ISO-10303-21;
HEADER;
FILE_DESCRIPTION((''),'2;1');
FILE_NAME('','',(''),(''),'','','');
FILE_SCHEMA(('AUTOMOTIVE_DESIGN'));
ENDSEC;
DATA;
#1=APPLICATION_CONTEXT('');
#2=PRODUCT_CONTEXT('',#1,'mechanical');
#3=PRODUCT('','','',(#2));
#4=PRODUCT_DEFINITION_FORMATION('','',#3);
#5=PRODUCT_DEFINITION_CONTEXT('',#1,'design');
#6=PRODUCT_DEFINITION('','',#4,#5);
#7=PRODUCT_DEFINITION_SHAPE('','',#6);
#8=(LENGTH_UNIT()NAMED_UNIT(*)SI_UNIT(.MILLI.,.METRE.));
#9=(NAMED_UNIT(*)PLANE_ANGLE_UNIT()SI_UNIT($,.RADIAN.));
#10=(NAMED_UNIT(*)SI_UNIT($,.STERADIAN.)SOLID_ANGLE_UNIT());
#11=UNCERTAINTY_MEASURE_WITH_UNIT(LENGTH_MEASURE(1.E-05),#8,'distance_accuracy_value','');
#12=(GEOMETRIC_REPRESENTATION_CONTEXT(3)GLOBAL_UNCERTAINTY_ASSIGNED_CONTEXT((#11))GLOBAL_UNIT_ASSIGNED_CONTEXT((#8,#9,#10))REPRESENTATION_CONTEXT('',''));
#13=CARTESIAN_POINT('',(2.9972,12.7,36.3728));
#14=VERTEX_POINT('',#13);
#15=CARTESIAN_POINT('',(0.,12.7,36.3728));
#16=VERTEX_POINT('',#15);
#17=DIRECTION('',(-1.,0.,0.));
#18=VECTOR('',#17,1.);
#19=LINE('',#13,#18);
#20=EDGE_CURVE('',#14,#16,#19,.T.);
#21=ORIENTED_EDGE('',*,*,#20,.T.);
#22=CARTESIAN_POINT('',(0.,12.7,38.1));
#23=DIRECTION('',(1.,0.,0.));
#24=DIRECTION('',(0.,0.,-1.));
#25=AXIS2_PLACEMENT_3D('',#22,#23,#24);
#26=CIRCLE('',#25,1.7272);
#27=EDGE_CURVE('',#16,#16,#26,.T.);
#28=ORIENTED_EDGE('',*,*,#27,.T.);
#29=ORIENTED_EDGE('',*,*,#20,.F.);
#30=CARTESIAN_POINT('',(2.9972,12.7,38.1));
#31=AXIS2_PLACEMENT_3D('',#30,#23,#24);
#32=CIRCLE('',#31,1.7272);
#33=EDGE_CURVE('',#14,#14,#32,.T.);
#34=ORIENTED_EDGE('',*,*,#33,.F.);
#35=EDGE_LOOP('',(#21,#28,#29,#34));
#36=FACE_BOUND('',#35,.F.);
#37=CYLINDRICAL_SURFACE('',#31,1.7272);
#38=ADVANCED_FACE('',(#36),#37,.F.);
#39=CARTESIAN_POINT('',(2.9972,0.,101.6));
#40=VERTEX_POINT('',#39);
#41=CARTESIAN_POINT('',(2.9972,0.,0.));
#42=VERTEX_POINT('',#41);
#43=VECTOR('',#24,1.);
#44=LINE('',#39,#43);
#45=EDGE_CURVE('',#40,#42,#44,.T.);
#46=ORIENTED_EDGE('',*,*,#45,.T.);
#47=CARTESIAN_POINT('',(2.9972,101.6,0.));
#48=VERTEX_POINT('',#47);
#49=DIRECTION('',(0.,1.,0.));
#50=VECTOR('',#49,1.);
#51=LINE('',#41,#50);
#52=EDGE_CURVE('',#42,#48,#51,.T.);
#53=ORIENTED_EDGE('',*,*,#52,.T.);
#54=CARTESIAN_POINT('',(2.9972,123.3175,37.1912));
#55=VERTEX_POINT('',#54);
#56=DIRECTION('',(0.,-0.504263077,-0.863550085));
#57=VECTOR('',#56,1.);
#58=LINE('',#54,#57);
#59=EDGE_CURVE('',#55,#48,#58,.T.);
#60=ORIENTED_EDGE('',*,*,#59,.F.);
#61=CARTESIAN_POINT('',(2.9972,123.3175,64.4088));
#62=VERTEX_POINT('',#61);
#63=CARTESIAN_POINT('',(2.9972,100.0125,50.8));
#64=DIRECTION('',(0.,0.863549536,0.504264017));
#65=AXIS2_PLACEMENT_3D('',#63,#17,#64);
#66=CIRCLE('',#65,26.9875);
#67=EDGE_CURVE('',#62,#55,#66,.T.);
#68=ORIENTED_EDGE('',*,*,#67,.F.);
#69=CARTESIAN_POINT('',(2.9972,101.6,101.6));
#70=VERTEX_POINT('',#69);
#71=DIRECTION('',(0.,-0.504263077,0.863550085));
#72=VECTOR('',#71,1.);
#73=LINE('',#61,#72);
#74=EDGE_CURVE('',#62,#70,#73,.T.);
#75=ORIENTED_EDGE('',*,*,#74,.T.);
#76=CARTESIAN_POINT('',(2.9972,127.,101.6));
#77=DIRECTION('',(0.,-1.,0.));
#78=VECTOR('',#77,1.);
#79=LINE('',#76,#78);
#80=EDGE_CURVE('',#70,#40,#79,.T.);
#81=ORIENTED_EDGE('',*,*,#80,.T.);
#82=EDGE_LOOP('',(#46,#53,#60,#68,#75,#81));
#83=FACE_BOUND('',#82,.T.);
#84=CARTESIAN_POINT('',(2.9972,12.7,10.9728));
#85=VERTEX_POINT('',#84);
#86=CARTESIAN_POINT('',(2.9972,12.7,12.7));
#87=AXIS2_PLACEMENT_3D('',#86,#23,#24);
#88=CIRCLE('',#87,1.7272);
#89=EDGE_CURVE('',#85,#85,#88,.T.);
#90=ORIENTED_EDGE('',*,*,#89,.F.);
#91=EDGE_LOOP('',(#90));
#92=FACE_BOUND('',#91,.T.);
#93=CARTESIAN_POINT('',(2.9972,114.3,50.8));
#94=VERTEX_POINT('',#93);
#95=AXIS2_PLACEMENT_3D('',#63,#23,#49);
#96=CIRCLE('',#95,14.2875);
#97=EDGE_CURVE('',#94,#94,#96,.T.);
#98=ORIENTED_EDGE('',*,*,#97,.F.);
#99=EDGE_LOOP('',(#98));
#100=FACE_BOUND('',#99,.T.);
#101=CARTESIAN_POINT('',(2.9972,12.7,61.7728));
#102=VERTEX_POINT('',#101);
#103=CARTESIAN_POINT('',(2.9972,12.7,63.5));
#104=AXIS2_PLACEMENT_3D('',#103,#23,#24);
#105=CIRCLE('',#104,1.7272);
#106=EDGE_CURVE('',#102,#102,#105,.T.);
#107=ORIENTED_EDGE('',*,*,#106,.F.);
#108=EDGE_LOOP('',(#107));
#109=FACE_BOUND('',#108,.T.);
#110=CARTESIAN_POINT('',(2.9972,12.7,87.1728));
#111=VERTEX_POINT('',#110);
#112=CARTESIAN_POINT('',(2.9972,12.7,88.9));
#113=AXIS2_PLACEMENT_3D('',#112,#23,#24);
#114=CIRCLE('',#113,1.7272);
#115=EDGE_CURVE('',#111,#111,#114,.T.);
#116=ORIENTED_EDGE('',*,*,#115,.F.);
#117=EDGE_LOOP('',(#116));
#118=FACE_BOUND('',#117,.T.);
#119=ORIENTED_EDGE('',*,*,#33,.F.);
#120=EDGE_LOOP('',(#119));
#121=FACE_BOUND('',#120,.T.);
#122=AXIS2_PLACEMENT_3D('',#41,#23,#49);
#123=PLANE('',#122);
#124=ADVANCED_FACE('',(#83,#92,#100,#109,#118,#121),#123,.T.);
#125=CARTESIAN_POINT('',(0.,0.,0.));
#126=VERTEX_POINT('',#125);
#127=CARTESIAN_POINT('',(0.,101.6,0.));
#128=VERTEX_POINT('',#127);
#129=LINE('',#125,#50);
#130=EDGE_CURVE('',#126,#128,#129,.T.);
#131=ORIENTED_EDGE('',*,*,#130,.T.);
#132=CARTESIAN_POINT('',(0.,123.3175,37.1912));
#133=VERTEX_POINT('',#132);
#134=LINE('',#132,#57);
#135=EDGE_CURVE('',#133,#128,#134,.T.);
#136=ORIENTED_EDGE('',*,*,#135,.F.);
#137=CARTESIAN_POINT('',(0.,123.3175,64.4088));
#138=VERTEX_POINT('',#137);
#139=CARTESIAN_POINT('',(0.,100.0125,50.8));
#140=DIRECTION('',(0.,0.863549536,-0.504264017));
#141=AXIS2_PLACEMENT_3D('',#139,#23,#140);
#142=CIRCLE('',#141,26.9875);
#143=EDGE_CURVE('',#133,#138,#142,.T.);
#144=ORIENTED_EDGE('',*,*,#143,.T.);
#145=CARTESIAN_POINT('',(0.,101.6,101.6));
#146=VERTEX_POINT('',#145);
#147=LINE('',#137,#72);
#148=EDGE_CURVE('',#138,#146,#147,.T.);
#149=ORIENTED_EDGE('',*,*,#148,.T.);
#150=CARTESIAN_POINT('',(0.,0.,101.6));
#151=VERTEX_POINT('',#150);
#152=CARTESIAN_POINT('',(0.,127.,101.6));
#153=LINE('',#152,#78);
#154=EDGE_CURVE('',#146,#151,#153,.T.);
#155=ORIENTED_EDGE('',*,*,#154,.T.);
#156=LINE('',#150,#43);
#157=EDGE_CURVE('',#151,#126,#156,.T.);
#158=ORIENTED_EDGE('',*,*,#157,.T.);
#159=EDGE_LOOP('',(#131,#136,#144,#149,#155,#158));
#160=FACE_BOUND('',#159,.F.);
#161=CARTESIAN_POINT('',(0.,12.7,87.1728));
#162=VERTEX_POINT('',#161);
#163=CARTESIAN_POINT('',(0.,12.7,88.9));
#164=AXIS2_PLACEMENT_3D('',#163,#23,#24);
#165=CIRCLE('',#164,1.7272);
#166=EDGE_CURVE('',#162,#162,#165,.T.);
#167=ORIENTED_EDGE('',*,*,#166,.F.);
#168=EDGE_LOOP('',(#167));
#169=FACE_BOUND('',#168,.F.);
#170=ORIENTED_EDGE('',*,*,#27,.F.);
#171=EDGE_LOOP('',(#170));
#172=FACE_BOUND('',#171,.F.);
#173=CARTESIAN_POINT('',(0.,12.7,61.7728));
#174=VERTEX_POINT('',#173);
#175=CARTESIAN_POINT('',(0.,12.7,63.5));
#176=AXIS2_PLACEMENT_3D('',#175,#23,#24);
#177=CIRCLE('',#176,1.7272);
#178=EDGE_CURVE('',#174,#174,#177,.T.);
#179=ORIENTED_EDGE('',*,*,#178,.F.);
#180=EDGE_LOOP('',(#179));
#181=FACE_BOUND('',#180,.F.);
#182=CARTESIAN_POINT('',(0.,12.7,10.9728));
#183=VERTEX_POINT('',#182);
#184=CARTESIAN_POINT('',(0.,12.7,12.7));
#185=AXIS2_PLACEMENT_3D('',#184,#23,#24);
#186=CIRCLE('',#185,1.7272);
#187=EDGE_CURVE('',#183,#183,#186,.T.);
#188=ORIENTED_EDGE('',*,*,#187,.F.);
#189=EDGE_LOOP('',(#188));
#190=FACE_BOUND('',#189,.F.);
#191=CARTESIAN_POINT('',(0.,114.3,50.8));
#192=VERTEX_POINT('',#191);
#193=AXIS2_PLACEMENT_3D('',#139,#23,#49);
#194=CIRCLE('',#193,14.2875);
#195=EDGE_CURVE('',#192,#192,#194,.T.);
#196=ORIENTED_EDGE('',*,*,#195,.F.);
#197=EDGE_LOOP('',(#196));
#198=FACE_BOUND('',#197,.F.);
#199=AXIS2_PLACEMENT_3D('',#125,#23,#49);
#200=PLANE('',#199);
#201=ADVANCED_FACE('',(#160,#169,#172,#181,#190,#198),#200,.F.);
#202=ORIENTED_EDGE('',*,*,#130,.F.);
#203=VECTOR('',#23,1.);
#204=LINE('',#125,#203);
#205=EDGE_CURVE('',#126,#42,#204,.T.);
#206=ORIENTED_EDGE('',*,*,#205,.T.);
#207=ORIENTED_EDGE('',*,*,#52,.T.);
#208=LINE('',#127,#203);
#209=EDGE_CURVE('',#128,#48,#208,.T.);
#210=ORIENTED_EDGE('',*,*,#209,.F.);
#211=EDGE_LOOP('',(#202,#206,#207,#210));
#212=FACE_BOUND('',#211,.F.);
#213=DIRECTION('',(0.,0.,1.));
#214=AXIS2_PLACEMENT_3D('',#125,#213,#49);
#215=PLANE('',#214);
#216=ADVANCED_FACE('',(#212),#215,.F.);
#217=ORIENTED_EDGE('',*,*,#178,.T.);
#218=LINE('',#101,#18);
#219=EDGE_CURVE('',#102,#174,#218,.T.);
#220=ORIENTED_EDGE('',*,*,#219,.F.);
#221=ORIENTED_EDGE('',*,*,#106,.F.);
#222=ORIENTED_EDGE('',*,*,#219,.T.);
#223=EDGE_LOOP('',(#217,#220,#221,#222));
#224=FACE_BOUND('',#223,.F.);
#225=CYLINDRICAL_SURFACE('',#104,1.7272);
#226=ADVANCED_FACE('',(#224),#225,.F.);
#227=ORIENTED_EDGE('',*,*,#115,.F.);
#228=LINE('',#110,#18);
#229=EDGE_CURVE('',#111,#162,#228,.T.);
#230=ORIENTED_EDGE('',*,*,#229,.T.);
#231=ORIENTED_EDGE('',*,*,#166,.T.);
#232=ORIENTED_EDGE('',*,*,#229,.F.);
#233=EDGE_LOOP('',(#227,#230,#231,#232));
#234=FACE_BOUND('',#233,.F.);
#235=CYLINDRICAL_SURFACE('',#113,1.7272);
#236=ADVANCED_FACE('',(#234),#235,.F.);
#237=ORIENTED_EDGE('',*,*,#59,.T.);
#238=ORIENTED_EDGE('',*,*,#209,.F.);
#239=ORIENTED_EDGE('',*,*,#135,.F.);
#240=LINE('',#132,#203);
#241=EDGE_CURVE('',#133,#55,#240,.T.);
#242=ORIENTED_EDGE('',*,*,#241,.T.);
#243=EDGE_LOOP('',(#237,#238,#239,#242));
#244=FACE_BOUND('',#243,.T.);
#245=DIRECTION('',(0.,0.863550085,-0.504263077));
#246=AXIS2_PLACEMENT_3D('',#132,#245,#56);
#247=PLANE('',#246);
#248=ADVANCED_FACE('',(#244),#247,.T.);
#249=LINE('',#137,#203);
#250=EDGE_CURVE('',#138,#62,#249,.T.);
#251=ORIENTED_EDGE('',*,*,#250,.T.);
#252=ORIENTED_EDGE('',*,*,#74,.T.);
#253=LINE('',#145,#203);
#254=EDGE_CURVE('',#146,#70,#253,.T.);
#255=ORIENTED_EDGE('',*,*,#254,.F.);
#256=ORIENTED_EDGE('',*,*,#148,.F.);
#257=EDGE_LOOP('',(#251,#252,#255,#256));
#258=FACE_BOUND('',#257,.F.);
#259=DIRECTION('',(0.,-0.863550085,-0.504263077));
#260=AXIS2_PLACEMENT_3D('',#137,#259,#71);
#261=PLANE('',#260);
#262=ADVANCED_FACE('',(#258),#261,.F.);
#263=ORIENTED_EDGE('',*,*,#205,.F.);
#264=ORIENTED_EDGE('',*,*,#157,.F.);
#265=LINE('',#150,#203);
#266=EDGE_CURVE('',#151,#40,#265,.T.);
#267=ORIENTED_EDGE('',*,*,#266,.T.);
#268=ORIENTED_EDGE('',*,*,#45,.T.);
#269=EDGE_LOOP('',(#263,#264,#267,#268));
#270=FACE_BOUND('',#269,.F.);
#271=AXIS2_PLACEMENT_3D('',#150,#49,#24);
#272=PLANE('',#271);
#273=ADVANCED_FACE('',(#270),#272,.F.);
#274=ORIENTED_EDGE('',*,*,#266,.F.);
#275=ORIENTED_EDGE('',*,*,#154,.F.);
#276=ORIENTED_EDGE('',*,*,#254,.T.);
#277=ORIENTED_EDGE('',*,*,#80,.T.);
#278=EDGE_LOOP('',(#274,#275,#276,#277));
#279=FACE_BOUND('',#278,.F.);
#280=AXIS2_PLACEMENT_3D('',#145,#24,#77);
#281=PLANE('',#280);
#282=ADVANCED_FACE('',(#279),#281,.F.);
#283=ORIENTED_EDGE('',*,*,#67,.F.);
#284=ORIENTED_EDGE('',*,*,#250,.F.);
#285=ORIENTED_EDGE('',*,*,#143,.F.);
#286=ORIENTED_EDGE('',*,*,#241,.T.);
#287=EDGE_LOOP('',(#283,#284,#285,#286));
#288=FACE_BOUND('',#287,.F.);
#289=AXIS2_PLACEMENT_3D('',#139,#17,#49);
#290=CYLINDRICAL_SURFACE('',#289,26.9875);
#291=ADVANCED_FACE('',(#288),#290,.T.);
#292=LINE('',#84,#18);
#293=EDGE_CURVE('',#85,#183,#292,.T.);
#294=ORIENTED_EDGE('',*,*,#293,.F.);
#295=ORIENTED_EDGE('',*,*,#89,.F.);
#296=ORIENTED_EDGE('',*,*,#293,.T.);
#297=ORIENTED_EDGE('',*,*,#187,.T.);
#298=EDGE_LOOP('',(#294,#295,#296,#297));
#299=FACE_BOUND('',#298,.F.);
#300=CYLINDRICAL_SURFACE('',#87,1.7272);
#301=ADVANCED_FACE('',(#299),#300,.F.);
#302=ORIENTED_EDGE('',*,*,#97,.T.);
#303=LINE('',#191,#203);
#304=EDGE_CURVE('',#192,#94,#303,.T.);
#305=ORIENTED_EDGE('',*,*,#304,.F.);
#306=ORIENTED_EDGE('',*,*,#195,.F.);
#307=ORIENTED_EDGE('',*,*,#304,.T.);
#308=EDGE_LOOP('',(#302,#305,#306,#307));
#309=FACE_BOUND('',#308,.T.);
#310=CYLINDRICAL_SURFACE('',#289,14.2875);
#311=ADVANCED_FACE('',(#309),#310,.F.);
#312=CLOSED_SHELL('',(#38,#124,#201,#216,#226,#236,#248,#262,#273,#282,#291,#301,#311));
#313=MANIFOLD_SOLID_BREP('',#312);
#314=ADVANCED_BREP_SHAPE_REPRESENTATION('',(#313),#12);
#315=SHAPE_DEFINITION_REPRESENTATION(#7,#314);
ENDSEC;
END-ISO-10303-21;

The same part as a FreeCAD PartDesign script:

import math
import FreeCAD as App
import Part
import Sketcher
from FreeCAD import Vector
Q = App.Units.Quantity

doc = App.newDocument("Part")
body = doc.addObject("PartDesign::Body", "Body")

# Sketch on YZ plane
sketch1 = body.newObject("Sketcher::SketchObject", "Sketch")
sketch1.AttachmentSupport = (doc.getObject("YZ_Plane"), [""])
sketch1.MapMode = "FlatFace"
sketch1.addGeometry([
    Part.LineSegment(Vector(123, 64, 0), Vector(102, 102, 0)),  # 0
    Part.LineSegment(Vector(102, 102, 0), Vector(0, 102, 0)),  # 1
    Part.LineSegment(Vector(0, 102, 0), Vector(0, 0, 0)),  # 2
    Part.LineSegment(Vector(0, 0, 0), Vector(102, 0, 0)),  # 3
    Part.LineSegment(Vector(102, 0, 0), Vector(123, 37, 0)),  # 4
    Part.ArcOfCircle(Part.Circle(Vector(100, 51, 0), Vector(0, 0, 1), 27), math.radians(-30), math.radians(30)),  # 5
    Part.Circle(Vector(100, 51, 0), Vector(0, 0, 1), 14),  # 6
], False)
sketch1.addConstraint([
    Sketcher.Constraint("Coincident", 0, 2, 1, 1),
    Sketcher.Constraint("Coincident", 1, 2, 2, 1),
    Sketcher.Constraint("Coincident", 2, 2, 3, 1),
    Sketcher.Constraint("Coincident", 3, 2, 4, 1),
    Sketcher.Constraint("Tangent", 4, 2, 5, 1),
    Sketcher.Constraint("Tangent", 5, 2, 0, 1),
    Sketcher.Constraint("Horizontal", 1),
    Sketcher.Constraint("Vertical", 2),
    Sketcher.Constraint("Horizontal", 3),
    Sketcher.Constraint("Coincident", 2, 2, -1, 1),
    Sketcher.Constraint("Coincident", 6, 3, 5, 3),
    Sketcher.Constraint("Vertical", 0, 2, 3, 2),
    Sketcher.Constraint("Vertical", 4, 2, 5, 2),
    Sketcher.Constraint("Equal", 3, 2),
    Sketcher.Constraint("DistanceX", 1, 2, 1, 1, Q("4 in")),
    Sketcher.Constraint("Diameter", 6, Q("1.125 in")),
    Sketcher.Constraint("Radius", 5, Q("1.0625 in")),
    Sketcher.Constraint("DistanceX", -1, 1, 5, 3, Q("3.9375 in")),
])
pad1 = body.newObject("PartDesign::Pad", "Pad")
pad1.Profile = sketch1
pad1.Length = Q("0.118 in")

# Sketch on YZ plane
sketch2 = body.newObject("Sketcher::SketchObject", "Sketch001")
sketch2.AttachmentSupport = (doc.getObject("YZ_Plane"), [""])
sketch2.MapMode = "FlatFace"
sketch2.AttachmentOffset = App.Placement(Vector(0, 0, 0.118 * 25.4), App.Rotation())
sketch2.addGeometry(Part.Circle(Vector(12.7, 88.9, 0), Vector(0, 0, 1), 1.7), False)
sketch2.addConstraint([
    Sketcher.Constraint("Diameter", 0, Q("0.136 in")),
    Sketcher.Constraint("DistanceX", -1, 1, 0, 3, Q("0.5 in")),
    Sketcher.Constraint("DistanceY", -1, 1, 0, 3, Q("3.5 in")),
])
pocket1 = body.newObject("PartDesign::Pocket", "Pocket")
pocket1.Profile = sketch2
pocket1.Length = Q("0.118 in")
doc.recompute()

linearpattern = body.newObject("PartDesign::LinearPattern", "LinearPattern")
linearpattern.Originals = [pocket1]
linearpattern.Direction = (doc.getObject("Z_Axis"), [""])
linearpattern.Mode = "offset"
linearpattern.Offset = Q("1 in")
linearpattern.Occurrences = 4
linearpattern.Reversed = True
body.Tip = linearpattern

doc.recompute()
